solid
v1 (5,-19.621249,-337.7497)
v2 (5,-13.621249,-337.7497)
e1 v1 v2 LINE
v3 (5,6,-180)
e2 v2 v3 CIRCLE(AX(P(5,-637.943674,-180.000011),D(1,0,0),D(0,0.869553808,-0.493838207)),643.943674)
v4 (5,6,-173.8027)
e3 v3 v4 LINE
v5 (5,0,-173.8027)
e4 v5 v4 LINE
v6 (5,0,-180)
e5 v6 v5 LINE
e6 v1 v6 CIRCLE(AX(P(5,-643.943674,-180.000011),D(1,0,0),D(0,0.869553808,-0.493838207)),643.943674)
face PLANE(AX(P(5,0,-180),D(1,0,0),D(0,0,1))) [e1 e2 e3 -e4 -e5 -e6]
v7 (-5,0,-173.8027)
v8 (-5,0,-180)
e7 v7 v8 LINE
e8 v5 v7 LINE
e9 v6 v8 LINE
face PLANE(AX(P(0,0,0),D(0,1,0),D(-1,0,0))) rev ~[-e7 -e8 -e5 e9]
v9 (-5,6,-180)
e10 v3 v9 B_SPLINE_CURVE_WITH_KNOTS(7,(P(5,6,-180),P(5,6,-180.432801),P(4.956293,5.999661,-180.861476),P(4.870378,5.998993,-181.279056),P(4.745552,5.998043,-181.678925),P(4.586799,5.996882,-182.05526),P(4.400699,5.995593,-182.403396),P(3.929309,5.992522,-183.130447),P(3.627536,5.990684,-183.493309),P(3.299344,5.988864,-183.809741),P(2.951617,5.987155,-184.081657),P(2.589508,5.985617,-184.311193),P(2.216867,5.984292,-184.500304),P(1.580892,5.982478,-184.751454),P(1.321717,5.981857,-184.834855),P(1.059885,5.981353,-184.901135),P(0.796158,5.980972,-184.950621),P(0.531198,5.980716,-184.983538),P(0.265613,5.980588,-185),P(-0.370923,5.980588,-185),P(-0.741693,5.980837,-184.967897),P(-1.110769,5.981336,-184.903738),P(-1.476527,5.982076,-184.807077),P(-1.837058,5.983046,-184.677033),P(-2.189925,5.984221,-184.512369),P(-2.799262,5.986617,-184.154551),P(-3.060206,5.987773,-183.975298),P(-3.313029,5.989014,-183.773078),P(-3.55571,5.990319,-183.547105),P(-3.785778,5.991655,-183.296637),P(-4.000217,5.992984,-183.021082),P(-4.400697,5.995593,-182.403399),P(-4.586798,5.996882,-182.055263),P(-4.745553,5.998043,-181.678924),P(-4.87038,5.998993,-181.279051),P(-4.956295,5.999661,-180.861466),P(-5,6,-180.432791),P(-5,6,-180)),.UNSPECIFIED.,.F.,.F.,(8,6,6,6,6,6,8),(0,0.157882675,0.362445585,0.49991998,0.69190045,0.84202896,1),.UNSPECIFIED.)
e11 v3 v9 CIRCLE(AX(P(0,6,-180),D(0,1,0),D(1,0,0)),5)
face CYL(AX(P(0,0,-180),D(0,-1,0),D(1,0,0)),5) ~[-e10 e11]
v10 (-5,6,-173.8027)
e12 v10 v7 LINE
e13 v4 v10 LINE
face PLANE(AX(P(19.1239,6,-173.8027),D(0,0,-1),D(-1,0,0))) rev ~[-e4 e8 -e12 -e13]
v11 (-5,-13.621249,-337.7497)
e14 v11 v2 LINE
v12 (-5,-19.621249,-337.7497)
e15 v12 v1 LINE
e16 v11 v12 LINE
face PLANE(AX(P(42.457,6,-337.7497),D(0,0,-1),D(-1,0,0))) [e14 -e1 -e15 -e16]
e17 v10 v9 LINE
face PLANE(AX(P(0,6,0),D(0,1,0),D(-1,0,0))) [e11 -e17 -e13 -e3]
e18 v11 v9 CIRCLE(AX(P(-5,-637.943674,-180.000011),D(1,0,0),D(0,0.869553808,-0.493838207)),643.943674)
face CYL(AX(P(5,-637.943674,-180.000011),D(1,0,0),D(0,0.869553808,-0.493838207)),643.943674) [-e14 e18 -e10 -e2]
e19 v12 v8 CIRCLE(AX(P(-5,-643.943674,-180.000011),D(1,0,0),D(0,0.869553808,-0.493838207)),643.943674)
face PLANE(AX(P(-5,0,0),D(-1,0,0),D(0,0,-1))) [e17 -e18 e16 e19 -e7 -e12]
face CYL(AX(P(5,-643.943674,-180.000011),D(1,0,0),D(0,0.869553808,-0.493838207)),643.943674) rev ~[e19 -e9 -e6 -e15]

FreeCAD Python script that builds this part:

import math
import FreeCAD as App
import Part
import Sketcher

V = App.Vector


def edges_at(feature, points):
    """Names of the edges that pass closest to the given points."""
    edges = feature.Shape.Edges
    near = lambda p: min(range(len(edges)), key=lambda i: edges[i].distToShape(Part.Vertex(*p))[0])
    return sorted({f"Edge{near(p) + 1}" for p in points})

doc = App.newDocument("Part")
body = doc.addObject("PartDesign::Body", "Body")

sketch1 = body.newObject("Sketcher::SketchObject", "Sketch")
sketch1.AttachmentSupport = (doc.getObject("XZ_Plane"), [""])
sketch1.MapMode = "FlatFace"
sketch1.addGeometry(Part.LineSegment(V(-5, -180, 0), V(-5, 0, 0)), False)
sketch1.addGeometry(Part.ArcOfCircle(Part.Circle(V(0, 0, 0), V(0, 0, 1), 5), math.radians(0), math.radians(180)), False)
sketch1.addGeometry(Part.LineSegment(V(5, 0, 0), V(5, -180, 0)), False)
sketch1.addGeometry(Part.ArcOfCircle(Part.Circle(V(0, -180, 0), V(0, 0, 1), 5), math.radians(180), math.radians(360)), False)
sketch1.addGeometry(Part.ArcOfCircle(Part.Circle(V(0, -40, 0), V(0, 0, 1), 1.6), math.radians(0), math.radians(180)), False)
sketch1.addGeometry(Part.LineSegment(V(-1.6, -40, 0), V(-1.6, -140, 0)), False)
sketch1.addGeometry(Part.ArcOfCircle(Part.Circle(V(0, -140, 0), V(0, 0, 1), 1.6), math.radians(180), math.radians(360)), False)
sketch1.addGeometry(Part.LineSegment(V(1.6, -140, 0), V(1.6, -40, 0)), False)
sketch1.addGeometry(Part.Circle(V(0, 0, 0), V(0, 0, 1), 1.6), False)
sketch1.addConstraint(Sketcher.Constraint("Tangent", 0, 2, 1, 2))
sketch1.addConstraint(Sketcher.Constraint("Tangent", 1, 1, 2, 1))
sketch1.addConstraint(Sketcher.Constraint("Tangent", 2, 2, 3, 2))
sketch1.addConstraint(Sketcher.Constraint("Tangent", 3, 1, 0, 1))
sketch1.addConstraint(Sketcher.Constraint("Tangent", 4, 2, 5, 1))
sketch1.addConstraint(Sketcher.Constraint("Tangent", 5, 2, 6, 1))
sketch1.addConstraint(Sketcher.Constraint("Tangent", 6, 2, 7, 1))
sketch1.addConstraint(Sketcher.Constraint("Tangent", 7, 2, 4, 1))
sketch1.addConstraint(Sketcher.Constraint("Vertical", 0))
sketch1.addConstraint(Sketcher.Constraint("Vertical", 2))
sketch1.addConstraint(Sketcher.Constraint("Vertical", 5))
sketch1.addConstraint(Sketcher.Constraint("Vertical", 7))
sketch1.addConstraint(Sketcher.Constraint("Coincident", 1, 3, -1, 1))
sketch1.addConstraint(Sketcher.Constraint("Coincident", 8, 3, -1, 1))
sketch1.addConstraint(Sketcher.Constraint("Equal", 6, 8))
sketch1.addConstraint(Sketcher.Constraint("PointOnObject", 4, 3, -2))
sketch1.addConstraint(Sketcher.Constraint("Radius", 1, 5.0))
sketch1.addConstraint(Sketcher.Constraint("Diameter", 8, 3.3))
sketch1.addConstraint(Sketcher.Constraint("DistanceY", 0, 1, 0, 2, 180.0))
sketch1.addConstraint(Sketcher.Constraint("DistanceY", 4, 3, -1, 1, 40.0))
sketch1.addConstraint(Sketcher.Constraint("DistanceY", 6, 3, -1, 1, 140.0))
pad1 = body.newObject("PartDesign::Pad", "Pad")
pad1.Profile = sketch1
pad1.Length = 6
pad1.Reversed = True

sketch2 = body.newObject("Sketcher::SketchObject", "Sketch001")
sketch2.AttachmentSupport = (doc.getObject("YZ_Plane"), [""])
sketch2.MapMode = "FlatFace"
sketch2.AttachmentOffset = App.Placement(V(0, 0, 5), App.Rotation())
sketch2.addGeometry(Part.LineSegment(V(6, -180, 0), V(0, -180, 0)), False)
sketch2.addGeometry(Part.ArcOfCircle(Part.Circle(V(-644, -180, 0), V(0, 0, 1), 644), math.radians(-30), math.radians(0)), False)
sketch2.addGeometry(Part.LineSegment(V(-84, -498, 0), V(-78, -498, 0)), False)
sketch2.addGeometry(Part.ArcOfCircle(Part.Circle(V(-638, -180, 0), V(0, 0, 1), 644), math.radians(-30), math.radians(0)), False)
sketch2.addConstraint(Sketcher.Constraint("Coincident", 0, 2, 1, 2))
sketch2.addConstraint(Sketcher.Constraint("Coincident", 1, 1, 2, 1))
sketch2.addConstraint(Sketcher.Constraint("Coincident", 2, 2, 3, 1))
sketch2.addConstraint(Sketcher.Constraint("Coincident", 3, 2, 0, 1))
sketch2.addConstraint(Sketcher.Constraint("Horizontal", 0))
sketch2.addConstraint(Sketcher.Constraint("Horizontal", 2))
sketch2.addConstraint(Sketcher.Constraint("Equal", 1, 3))
sketch2.addConstraint(Sketcher.Constraint("PointOnObject", 0, 2, -2))
sketch2.addConstraint(Sketcher.Constraint("Horizontal", 1, 3, 3, 3))
sketch2.addConstraint(Sketcher.Constraint("Horizontal", 3, 3, 0, 2))
sketch2.addConstraint(Sketcher.Constraint("DistanceX", 0, 2, 0, 1, 6.0))
sketch2.addConstraint(Sketcher.Constraint("DistanceY", 1, 3, -1, 1, 180.0))
sketch2.addConstraint(Sketcher.Constraint("DistanceY", 2, 2, -1, 1, 498.004))
sketch2.addConstraint(Sketcher.Constraint("DistanceX", 2, 2, -1, 1, 78.0))
pad2 = body.newObject("PartDesign::Pad", "Pad001")
pad2.Profile = sketch2
pad2.Length = 10
pad2.Reversed = True
doc.recompute()

fillet = body.newObject("PartDesign::Fillet", "Fillet")
fillet.Base = (pad2, edges_at(pad2, [
    (0, -78, -498.004),
    (5, -81, -498.004),
    (-5, -81, -498.004),
    (0, -84, -498.004),
]))
fillet.Radius = 2

sketch3 = body.newObject("Sketcher::SketchObject", "Sketch002")
sketch3.AttachmentSupport = (doc.getObject("XZ_Plane"), [""])
sketch3.MapMode = "FlatFace"
sketch3.AttachmentOffset = App.Placement(V(0, 0, -6), App.Rotation())
sketch3.addGeometry(Part.LineSegment(V(-25, -174, 0), V(-25, 17, 0)), False)
sketch3.addGeometry(Part.LineSegment(V(-25, 17, 0), V(19, 17, 0)), False)
sketch3.addGeometry(Part.LineSegment(V(19, 17, 0), V(19, -174, 0)), False)
sketch3.addGeometry(Part.LineSegment(V(19, -174, 0), V(-25, -174, 0)), False)
sketch3.addGeometry(Part.LineSegment(V(-102, -618, 0), V(-102, 92, 0)), False)
sketch3.addGeometry(Part.LineSegment(V(-102, 92, 0), V(99, 92, 0)), False)
sketch3.addGeometry(Part.LineSegment(V(99, 92, 0), V(99, -618, 0)), False)
sketch3.addGeometry(Part.LineSegment(V(99, -618, 0), V(-102, -618, 0)), False)
sketch3.addGeometry(Part.LineSegment(V(42, 36, 0), V(-48, 36, 0)), False)
sketch3.addGeometry(Part.LineSegment(V(-48, 36, 0), V(-48, -338, 0)), False)
sketch3.addGeometry(Part.LineSegment(V(-48, -338, 0), V(42, -338, 0)), False)
sketch3.addGeometry(Part.LineSegment(V(42, -338, 0), V(42, 36, 0)), False)
sketch3.addConstraint(Sketcher.Constraint("Coincident", 0, 2, 1, 1))
sketch3.addConstraint(Sketcher.Constraint("Coincident", 1, 2, 2, 1))
sketch3.addConstraint(Sketcher.Constraint("Coincident", 2, 2, 3, 1))
sketch3.addConstraint(Sketcher.Constraint("Coincident", 3, 2, 0, 1))
sketch3.addConstraint(Sketcher.Constraint("Coincident", 4, 2, 5, 1))
sketch3.addConstraint(Sketcher.Constraint("Coincident", 5, 2, 6, 1))
sketch3.addConstraint(Sketcher.Constraint("Coincident", 6, 2, 7, 1))
sketch3.addConstraint(Sketcher.Constraint("Coincident", 7, 2, 4, 1))
sketch3.addConstraint(Sketcher.Constraint("Coincident", 8, 2, 9, 1))
sketch3.addConstraint(Sketcher.Constraint("Coincident", 9, 2, 10, 1))
sketch3.addConstraint(Sketcher.Constraint("Coincident", 10, 2, 11, 1))
sketch3.addConstraint(Sketcher.Constraint("Coincident", 11, 2, 8, 1))
sketch3.addConstraint(Sketcher.Constraint("Vertical", 0))
sketch3.addConstraint(Sketcher.Constraint("Horizontal", 1))
sketch3.addConstraint(Sketcher.Constraint("Vertical", 2))
sketch3.addConstraint(Sketcher.Constraint("Horizontal", 3))
sketch3.addConstraint(Sketcher.Constraint("Vertical", 4))
sketch3.addConstraint(Sketcher.Constraint("Horizontal", 5))
sketch3.addConstraint(Sketcher.Constraint("Vertical", 6))
sketch3.addConstraint(Sketcher.Constraint("Horizontal", 7))
sketch3.addConstraint(Sketcher.Constraint("Horizontal", 8))
sketch3.addConstraint(Sketcher.Constraint("Vertical", 9))
sketch3.addConstraint(Sketcher.Constraint("Horizontal", 10))
sketch3.addConstraint(Sketcher.Constraint("Vertical", 11))
sketch3.addConstraint(Sketcher.Constraint("DistanceX", 5, 1, 5, 2, 200.677))
sketch3.addConstraint(Sketcher.Constraint("DistanceX", 8, 2, 8, 1, 90.504))
sketch3.addConstraint(Sketcher.Constraint("DistanceY", 4, 1, 4, 2, 710.286))
sketch3.addConstraint(Sketcher.Constraint("DistanceY", 9, 2, 9, 1, 373.483))
sketch3.addConstraint(Sketcher.Constraint("DistanceX", 1, 1, 1, 2, 44.2475))
sketch3.addConstraint(Sketcher.Constraint("DistanceY", 0, 1, 0, 2, 191.2392))
sketch3.addConstraint(Sketcher.Constraint("DistanceX", -1, 1, 1, 2, 19.124))
sketch3.addConstraint(Sketcher.Constraint("DistanceX", 4, 2, -1, 1, 102.064))
sketch3.addConstraint(Sketcher.Constraint("DistanceX", 8, 2, -1, 1, 48.047))
sketch3.addConstraint(Sketcher.Constraint("DistanceY", 3, 2, 4, 2, 266.147))
sketch3.addConstraint(Sketcher.Constraint("DistanceY", 8, 2, 4, 2, 56.611))
sketch3.addConstraint(Sketcher.Constraint("DistanceY", -1, 1, 0, 2, 17.4365))
pocket1 = body.newObject("PartDesign::Pocket", "Pocket")
pocket1.Profile = sketch3
pocket1.Length = 100
pocket1.Reversed = True

doc.recompute()
